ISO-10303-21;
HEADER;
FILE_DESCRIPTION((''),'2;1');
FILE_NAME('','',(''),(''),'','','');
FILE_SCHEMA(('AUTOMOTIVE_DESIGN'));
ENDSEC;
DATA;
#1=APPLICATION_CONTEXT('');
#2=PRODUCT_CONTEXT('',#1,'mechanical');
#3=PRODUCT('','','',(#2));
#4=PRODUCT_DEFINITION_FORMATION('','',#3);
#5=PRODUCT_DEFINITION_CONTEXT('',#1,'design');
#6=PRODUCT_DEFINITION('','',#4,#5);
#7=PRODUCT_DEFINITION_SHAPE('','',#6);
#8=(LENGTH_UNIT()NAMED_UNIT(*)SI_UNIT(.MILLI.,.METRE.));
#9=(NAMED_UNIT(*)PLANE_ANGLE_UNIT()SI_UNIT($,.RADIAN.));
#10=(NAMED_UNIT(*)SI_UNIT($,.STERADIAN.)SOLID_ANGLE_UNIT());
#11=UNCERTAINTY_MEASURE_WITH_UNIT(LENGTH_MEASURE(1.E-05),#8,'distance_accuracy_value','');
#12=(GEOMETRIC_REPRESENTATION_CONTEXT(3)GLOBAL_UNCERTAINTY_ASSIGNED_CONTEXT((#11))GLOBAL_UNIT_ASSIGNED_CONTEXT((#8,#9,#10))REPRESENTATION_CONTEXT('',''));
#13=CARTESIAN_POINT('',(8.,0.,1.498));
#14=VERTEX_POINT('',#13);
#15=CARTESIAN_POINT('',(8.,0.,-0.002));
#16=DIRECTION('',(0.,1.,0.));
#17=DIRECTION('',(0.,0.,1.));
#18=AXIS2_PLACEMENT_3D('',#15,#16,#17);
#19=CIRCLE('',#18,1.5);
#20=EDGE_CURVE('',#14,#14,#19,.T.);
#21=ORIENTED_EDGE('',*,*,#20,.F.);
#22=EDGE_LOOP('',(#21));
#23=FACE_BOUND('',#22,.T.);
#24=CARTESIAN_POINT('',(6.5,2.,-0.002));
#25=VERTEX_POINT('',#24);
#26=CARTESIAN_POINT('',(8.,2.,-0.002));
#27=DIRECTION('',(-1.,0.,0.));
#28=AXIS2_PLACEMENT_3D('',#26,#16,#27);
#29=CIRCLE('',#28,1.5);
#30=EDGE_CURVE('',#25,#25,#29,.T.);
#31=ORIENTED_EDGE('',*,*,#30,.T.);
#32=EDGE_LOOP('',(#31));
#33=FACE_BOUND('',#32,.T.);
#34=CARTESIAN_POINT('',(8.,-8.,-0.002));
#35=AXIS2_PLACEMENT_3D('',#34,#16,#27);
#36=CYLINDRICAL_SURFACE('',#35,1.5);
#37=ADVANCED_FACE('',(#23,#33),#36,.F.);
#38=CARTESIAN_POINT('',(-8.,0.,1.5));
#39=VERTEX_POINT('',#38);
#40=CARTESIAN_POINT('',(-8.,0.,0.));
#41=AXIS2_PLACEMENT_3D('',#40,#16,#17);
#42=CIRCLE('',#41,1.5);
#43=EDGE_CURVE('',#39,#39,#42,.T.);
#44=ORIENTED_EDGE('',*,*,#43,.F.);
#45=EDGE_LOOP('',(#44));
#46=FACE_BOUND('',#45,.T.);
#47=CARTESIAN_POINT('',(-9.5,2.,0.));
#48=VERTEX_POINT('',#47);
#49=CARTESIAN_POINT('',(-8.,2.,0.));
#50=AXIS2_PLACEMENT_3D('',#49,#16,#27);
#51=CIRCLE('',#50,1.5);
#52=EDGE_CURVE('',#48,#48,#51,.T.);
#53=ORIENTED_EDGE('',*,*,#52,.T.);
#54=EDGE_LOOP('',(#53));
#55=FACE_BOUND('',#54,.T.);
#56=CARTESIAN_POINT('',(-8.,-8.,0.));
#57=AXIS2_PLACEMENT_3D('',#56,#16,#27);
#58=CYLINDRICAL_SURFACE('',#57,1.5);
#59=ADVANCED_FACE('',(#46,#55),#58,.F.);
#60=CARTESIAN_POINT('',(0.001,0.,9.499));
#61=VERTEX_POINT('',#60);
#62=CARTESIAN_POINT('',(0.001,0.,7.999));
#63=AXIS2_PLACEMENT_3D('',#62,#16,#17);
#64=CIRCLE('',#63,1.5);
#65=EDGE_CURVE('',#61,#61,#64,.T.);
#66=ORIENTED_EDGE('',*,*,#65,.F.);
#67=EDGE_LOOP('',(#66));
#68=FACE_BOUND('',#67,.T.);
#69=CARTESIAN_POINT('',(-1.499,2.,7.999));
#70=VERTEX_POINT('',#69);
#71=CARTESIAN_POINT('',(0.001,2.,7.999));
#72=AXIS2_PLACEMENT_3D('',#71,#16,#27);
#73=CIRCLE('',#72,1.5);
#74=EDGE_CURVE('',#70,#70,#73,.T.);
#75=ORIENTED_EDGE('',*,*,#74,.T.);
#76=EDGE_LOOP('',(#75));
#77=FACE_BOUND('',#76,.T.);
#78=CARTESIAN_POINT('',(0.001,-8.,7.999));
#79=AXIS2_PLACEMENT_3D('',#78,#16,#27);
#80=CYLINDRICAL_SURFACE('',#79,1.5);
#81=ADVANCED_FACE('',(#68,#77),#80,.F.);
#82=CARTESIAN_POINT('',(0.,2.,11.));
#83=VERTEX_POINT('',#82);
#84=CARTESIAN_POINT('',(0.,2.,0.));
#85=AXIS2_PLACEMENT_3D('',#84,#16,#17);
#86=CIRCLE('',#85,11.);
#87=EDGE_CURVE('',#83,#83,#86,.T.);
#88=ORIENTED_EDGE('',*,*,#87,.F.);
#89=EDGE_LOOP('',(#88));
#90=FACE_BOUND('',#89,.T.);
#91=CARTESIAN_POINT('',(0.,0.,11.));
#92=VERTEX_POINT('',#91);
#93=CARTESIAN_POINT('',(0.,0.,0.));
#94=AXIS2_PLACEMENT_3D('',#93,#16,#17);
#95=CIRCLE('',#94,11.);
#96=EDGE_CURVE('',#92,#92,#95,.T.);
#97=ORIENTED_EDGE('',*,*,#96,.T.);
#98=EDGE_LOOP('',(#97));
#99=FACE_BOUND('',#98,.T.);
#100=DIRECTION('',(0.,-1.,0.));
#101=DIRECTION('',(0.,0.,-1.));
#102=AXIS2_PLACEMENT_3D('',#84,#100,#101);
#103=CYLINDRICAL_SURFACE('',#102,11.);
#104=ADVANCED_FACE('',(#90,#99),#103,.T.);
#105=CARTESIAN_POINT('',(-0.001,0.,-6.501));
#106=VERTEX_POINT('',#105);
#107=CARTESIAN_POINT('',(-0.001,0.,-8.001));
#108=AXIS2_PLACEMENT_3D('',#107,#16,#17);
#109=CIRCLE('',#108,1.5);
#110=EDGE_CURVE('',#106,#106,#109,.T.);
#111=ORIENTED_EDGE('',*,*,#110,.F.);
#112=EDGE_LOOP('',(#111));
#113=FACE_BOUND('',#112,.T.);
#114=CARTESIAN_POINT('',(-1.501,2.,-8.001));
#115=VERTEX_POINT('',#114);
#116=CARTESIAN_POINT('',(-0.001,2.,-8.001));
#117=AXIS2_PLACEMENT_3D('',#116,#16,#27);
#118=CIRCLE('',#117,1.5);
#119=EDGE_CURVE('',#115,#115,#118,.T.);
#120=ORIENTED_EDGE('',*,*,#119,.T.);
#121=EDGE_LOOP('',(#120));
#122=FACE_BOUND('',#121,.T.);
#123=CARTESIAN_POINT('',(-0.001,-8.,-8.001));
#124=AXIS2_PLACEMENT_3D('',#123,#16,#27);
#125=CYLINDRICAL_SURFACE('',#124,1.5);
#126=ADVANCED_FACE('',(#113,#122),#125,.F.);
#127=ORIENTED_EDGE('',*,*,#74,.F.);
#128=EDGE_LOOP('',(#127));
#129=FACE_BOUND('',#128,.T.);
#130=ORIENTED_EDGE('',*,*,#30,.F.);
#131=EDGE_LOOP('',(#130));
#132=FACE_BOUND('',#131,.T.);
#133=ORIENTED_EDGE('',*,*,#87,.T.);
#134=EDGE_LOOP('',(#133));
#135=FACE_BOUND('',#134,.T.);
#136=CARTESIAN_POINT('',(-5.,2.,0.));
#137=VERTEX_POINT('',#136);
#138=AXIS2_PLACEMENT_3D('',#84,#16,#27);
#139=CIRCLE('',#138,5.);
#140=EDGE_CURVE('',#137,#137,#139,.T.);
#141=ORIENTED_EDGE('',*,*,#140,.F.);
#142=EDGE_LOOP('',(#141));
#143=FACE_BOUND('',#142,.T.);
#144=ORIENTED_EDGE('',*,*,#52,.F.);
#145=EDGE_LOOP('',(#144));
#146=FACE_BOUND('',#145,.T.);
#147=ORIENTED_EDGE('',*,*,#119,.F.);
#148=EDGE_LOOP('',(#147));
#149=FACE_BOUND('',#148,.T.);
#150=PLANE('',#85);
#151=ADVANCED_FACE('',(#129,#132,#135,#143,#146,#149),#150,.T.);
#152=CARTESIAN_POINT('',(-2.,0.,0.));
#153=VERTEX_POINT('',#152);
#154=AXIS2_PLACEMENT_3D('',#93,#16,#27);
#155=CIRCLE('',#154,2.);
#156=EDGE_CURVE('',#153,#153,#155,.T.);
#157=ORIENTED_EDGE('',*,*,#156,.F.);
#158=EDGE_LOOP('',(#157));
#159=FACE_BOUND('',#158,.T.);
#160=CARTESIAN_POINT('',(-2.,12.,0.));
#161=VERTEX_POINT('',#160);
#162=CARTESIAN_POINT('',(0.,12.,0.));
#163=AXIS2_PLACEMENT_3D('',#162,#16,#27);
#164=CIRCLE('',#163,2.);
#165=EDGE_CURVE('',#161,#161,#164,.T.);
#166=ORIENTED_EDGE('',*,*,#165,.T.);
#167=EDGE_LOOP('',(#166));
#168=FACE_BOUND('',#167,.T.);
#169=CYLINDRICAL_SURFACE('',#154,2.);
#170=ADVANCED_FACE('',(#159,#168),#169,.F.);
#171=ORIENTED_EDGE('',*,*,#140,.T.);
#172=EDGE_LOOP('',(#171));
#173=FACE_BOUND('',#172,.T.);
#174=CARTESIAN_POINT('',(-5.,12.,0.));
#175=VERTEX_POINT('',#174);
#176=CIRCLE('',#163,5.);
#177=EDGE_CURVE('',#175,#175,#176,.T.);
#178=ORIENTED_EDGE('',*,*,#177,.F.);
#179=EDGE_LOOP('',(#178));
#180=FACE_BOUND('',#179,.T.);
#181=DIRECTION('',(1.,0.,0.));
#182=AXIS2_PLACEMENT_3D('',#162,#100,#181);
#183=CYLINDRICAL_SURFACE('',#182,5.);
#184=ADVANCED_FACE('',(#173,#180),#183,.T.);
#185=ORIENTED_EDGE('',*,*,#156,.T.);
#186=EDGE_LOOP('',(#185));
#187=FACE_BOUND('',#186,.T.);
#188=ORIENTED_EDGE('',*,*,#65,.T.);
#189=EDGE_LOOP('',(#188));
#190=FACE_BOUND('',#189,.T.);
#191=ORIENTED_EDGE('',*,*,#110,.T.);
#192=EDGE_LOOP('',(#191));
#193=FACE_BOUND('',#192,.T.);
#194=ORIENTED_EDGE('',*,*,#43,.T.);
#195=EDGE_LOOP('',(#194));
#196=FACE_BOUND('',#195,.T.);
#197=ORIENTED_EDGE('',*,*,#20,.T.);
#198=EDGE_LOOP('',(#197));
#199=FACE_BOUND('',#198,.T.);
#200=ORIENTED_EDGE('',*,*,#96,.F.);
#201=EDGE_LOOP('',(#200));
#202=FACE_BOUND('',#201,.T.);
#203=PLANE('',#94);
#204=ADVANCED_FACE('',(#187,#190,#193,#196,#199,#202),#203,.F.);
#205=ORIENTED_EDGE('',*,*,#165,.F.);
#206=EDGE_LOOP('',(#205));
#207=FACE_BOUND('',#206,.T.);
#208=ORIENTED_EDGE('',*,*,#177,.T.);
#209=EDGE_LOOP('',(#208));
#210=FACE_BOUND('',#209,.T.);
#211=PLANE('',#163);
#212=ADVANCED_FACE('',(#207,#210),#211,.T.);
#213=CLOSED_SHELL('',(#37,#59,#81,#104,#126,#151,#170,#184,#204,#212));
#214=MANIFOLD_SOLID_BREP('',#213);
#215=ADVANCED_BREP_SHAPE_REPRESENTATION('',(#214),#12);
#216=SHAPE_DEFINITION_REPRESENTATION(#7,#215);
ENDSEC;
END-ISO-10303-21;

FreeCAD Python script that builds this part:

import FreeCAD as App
import Part
import Sketcher
from FreeCAD import Vector
Q = App.Units.Quantity

doc = App.newDocument("Part")
body = doc.addObject("PartDesign::Body", "Body")

sketch1 = body.newObject("Sketcher::SketchObject", "Sketch")
sketch1.AttachmentSupport = (doc.getObject("XZ_Plane"), [""])
sketch1.MapMode = "FlatFace"
sketch1.addGeometry(Part.Circle(Vector(0, 0, 0), Vector(0, 0, 1), 11), False)
sketch1.addConstraint([
    Sketcher.Constraint("Coincident", 0, 3, -1, 1),
    Sketcher.Constraint("Diameter", 0, Q("22 mm")),
])
pad1 = body.newObject("PartDesign::Pad", "Pad")
pad1.Profile = sketch1
pad1.Length = 2
pad1.Reversed = True

sketch2 = body.newObject("Sketcher::SketchObject", "Sketch001")
sketch2.AttachmentSupport = (doc.getObject("XZ_Plane"), [""])
sketch2.MapMode = "FlatFace"
sketch2.AttachmentOffset = App.Placement(Vector(0, 0, -2), App.Rotation())
sketch2.addGeometry(Part.Circle(Vector(0, 0, 0), Vector(0, 0, 1), 5), False)
sketch2.addConstraint([
    Sketcher.Constraint("Coincident", 0, 3, -1, 1),
    Sketcher.Constraint("Diameter", 0, Q("10 mm")),
])
pad2 = body.newObject("PartDesign::Pad", "Pad001")
pad2.Profile = sketch2
pad2.Length = 10
pad2.Reversed = True

sketch3 = body.newObject("Sketcher::SketchObject", "Sketch002")
sketch3.AttachmentSupport = (doc.getObject("XZ_Plane"), [""])
sketch3.MapMode = "FlatFace"
sketch3.AttachmentOffset = App.Placement(Vector(0, 0, -2), App.Rotation())
sketch3.addGeometry([
    Part.Circle(Vector(-8, 0, 0), Vector(0, 0, 1), 1.5),
    Part.Circle(Vector(-0.001, -8.001, 0), Vector(0, 0, 1), 1.5),
    Part.Circle(Vector(8, -0.002, 0), Vector(0, 0, 1), 1.5),
    Part.Circle(Vector(0.001, 7.999, 0), Vector(0, 0, 1), 1.5),
], False)
sketch3.addConstraint([
    Sketcher.Constraint("Equal", 0, 1),
    Sketcher.Constraint("Equal", 1, 2),
    Sketcher.Constraint("Equal", 2, 3),
    Sketcher.Constraint("PointOnObject", 0, 3, -1),
    Sketcher.Constraint("Diameter", 0, Q("3 mm")),
    Sketcher.Constraint("DistanceX", 0, 3, -1, 1, Q("8 mm")),
    Sketcher.Constraint("DistanceX", -1, 1, 2, 3, Q("8 mm")),
    Sketcher.Constraint("DistanceY", 1, 3, 3, 3, Q("16 mm")),
    Sketcher.Constraint("DistanceX", 1, 3, -1, 1, Q("0.001 mm")),
    Sketcher.Constraint("DistanceY", 1, 3, -1, 1, Q("8.001 mm")),
    Sketcher.Constraint("DistanceY", 2, 3, -1, 1, Q("0.002 mm")),
    Sketcher.Constraint("DistanceX", -1, 1, 3, 3, Q("0.001 mm")),
])
pocket1 = body.newObject("PartDesign::Pocket", "Pocket")
pocket1.Profile = sketch3
pocket1.Length = 10
pocket1.Reversed = True

sketch4 = body.newObject("Sketcher::SketchObject", "Sketch003")
sketch4.AttachmentSupport = (doc.getObject("XZ_Plane"), [""])
sketch4.MapMode = "FlatFace"
sketch4.AttachmentOffset = App.Placement(Vector(0, 0, -12), App.Rotation())
sketch4.addGeometry(Part.Circle(Vector(0, 0, 0), Vector(0, 0, 1), 2), False)
sketch4.addConstraint([
    Sketcher.Constraint("Coincident", 0, 3, -1, 1),
    Sketcher.Constraint("Diameter", 0, Q("4 mm")),
])
pocket2 = body.newObject("PartDesign::Pocket", "Pocket001")
pocket2.Profile = sketch4
pocket2.Type = "ThroughAll"
pocket2.Reversed = True

doc.recompute()
